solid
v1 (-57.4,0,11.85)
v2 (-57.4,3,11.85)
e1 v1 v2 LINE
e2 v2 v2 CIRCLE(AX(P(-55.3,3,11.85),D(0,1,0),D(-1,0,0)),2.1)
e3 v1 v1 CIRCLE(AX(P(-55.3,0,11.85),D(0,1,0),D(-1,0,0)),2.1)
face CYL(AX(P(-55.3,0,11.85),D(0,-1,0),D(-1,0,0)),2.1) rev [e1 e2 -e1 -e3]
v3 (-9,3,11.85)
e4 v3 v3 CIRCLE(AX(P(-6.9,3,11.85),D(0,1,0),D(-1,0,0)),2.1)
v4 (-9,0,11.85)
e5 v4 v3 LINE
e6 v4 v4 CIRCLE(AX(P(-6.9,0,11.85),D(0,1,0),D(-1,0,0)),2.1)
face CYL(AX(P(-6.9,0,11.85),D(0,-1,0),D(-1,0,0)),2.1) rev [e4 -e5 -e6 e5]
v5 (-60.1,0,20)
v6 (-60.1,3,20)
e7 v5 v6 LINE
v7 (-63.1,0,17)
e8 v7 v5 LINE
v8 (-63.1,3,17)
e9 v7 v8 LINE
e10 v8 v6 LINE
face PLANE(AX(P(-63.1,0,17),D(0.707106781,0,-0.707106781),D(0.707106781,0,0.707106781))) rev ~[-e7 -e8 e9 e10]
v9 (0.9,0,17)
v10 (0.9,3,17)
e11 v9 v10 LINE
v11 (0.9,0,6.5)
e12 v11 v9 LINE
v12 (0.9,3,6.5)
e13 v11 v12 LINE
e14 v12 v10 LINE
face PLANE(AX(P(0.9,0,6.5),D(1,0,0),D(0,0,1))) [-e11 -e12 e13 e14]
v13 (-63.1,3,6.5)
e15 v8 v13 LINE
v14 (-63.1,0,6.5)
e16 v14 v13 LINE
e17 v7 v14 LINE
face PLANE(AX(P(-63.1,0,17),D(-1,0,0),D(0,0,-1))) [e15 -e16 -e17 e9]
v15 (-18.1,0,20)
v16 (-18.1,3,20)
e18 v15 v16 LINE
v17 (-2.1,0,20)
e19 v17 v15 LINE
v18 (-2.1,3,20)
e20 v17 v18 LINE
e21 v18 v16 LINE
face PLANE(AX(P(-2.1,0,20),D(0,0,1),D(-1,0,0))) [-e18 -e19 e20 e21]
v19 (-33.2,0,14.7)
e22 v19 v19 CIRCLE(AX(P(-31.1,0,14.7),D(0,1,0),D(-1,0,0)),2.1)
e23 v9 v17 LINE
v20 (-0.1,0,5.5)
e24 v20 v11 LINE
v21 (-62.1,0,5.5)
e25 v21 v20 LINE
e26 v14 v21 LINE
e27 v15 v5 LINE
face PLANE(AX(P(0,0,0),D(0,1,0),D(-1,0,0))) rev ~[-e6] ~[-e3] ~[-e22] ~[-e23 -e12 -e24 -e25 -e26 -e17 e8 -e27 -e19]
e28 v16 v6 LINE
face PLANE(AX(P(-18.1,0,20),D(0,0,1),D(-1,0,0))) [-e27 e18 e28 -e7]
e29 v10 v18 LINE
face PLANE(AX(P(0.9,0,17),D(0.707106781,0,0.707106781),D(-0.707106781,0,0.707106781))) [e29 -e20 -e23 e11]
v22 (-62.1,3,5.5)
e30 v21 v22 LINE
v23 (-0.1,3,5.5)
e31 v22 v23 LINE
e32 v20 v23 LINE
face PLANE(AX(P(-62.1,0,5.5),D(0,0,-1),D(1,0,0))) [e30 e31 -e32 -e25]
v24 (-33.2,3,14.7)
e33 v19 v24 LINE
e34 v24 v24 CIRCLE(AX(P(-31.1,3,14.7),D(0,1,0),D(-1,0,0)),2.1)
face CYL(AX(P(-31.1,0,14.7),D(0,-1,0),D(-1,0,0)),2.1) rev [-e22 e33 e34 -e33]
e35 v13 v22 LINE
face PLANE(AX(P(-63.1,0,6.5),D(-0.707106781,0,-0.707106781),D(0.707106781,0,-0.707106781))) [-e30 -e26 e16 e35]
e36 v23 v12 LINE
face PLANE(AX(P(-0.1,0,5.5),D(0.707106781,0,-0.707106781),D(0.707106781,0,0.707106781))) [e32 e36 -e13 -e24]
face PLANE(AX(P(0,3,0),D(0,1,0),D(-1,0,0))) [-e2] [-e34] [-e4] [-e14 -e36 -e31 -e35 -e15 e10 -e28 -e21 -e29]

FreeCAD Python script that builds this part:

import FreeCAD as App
import Part
import Sketcher
from FreeCAD import Vector


def add_polygon(sketch, points):
    """Adds a closed chain of lines whose ends are joined by coincident constraints."""
    first, n = sketch.GeometryCount, len(points)
    for a, b in zip(points, points[1:] + points[:1]):
        sketch.addGeometry(Part.LineSegment(App.Vector(*a, 0), App.Vector(*b, 0)), False)
    for i in range(n):
        sketch.addConstraint(Sketcher.Constraint("Coincident", first + i, 2, first + (i + 1) % n, 1))

doc = App.newDocument("Part")
params = doc.addObject("Spreadsheet::Sheet", "Params")
for row, (alias, value) in enumerate([
    ("sketch1_diameter", "4.2 mm"),
    ("sketch1_width", "62 mm"),
    ("pad1_length", "3 mm"),
], start=1):
    params.set(f"A{row}", alias)
    params.set(f"B{row}", "=" + value)
    params.setAlias(f"B{row}", alias)

body = doc.addObject("PartDesign::Body", "Body")

# Sketch on XZ plane
sketch1 = doc.addObject("Sketcher::SketchObject", "Sketch")
body.addObject(sketch1)
sketch1.AttachmentSupport = (doc.XZ_Plane, [""])
sketch1.MapMode = "FlatFace"
add_polygon(sketch1, [(-0.1, 5.5), (-62.1, 5.5), (-63.1, 6.5), (-63.1, 17), (-60.1, 20), (-2.1, 20), (0.9, 17), (0.9, 6.5)])  # lines 0-7
sketch1.addGeometry(Part.Circle(Vector(-6.9, 11.8, 0), Vector(0, 0, 1), 2.1), False)  # 8
sketch1.addGeometry(Part.Circle(Vector(-55.3, 11.8, 0), Vector(0, 0, 1), 2.1), False)  # 9
sketch1.addGeometry(Part.Circle(Vector(-31.1, 14.7, 0), Vector(0, 0, 1), 2.1), False)  # 10
sketch1.addConstraint(Sketcher.Constraint("Horizontal", 0))
sketch1.addConstraint(Sketcher.Constraint("Vertical", 2))
sketch1.addConstraint(Sketcher.Constraint("Horizontal", 4))
sketch1.addConstraint(Sketcher.Constraint("Vertical", 6))
sketch1.addConstraint(Sketcher.Constraint("Equal", 8, 9))
sketch1.addConstraint(Sketcher.Constraint("Equal", 9, 10))
sketch1.addConstraint(Sketcher.Constraint("Perpendicular", 1, 3))
sketch1.addConstraint(Sketcher.Constraint("Perpendicular", 3, 5))
sketch1.addConstraint(Sketcher.Constraint("Perpendicular", 5, 7))
sketch1.addConstraint(Sketcher.Constraint("Horizontal", 8, 3, 9, 3))
sketch1.addConstraint(Sketcher.Constraint("Horizontal", 2, 2, 5, 2))
sketch1.addConstraint(Sketcher.Constraint("Horizontal", 1, 2, 6, 2))
sketch1.addConstraint(Sketcher.Constraint("Equal", 3, 5))
sketch1.addConstraint(Sketcher.Constraint("Diameter", 8, 4.2))
sketch1.addConstraint(Sketcher.Constraint("DistanceX", 1, 2, 0, 2, 1.0))
sketch1.addConstraint(Sketcher.Constraint("DistanceX", 2, 2, 3, 2, 3.0))
sketch1.addConstraint(Sketcher.Constraint("DistanceY", 0, 2, 3, 2, 14.5))
sketch1.addConstraint(Sketcher.Constraint("DistanceX", 0, 2, 0, 1, 62.0))
sketch1.addConstraint(Sketcher.Constraint("DistanceY", -1, 1, 2, 2, 17.0))
sketch1.addConstraint(Sketcher.Constraint("DistanceX", 0, 2, 10, 3, 31.0))
sketch1.addConstraint(Sketcher.Constraint("DistanceX", 8, 3, -1, 1, 6.9))
sketch1.addConstraint(Sketcher.Constraint("DistanceX", 9, 3, -1, 1, 55.3))
sketch1.addConstraint(Sketcher.Constraint("DistanceX", 10, 3, -1, 1, 31.1))
sketch1.addConstraint(Sketcher.Constraint("DistanceY", -1, 1, 10, 3, 14.7))
sketch1.addConstraint(Sketcher.Constraint("DistanceY", -1, 1, 8, 3, 11.85))
sketch1.setExpression("Constraints[21]", "Params.sketch1_diameter")
sketch1.setExpression("Constraints[25]", "Params.sketch1_width")
pad1 = doc.addObject("PartDesign::Pad", "Pad")
body.addObject(pad1)
pad1.Profile = sketch1
pad1.setExpression("Length", "Params.pad1_length")
pad1.Reversed = True

doc.recompute()
